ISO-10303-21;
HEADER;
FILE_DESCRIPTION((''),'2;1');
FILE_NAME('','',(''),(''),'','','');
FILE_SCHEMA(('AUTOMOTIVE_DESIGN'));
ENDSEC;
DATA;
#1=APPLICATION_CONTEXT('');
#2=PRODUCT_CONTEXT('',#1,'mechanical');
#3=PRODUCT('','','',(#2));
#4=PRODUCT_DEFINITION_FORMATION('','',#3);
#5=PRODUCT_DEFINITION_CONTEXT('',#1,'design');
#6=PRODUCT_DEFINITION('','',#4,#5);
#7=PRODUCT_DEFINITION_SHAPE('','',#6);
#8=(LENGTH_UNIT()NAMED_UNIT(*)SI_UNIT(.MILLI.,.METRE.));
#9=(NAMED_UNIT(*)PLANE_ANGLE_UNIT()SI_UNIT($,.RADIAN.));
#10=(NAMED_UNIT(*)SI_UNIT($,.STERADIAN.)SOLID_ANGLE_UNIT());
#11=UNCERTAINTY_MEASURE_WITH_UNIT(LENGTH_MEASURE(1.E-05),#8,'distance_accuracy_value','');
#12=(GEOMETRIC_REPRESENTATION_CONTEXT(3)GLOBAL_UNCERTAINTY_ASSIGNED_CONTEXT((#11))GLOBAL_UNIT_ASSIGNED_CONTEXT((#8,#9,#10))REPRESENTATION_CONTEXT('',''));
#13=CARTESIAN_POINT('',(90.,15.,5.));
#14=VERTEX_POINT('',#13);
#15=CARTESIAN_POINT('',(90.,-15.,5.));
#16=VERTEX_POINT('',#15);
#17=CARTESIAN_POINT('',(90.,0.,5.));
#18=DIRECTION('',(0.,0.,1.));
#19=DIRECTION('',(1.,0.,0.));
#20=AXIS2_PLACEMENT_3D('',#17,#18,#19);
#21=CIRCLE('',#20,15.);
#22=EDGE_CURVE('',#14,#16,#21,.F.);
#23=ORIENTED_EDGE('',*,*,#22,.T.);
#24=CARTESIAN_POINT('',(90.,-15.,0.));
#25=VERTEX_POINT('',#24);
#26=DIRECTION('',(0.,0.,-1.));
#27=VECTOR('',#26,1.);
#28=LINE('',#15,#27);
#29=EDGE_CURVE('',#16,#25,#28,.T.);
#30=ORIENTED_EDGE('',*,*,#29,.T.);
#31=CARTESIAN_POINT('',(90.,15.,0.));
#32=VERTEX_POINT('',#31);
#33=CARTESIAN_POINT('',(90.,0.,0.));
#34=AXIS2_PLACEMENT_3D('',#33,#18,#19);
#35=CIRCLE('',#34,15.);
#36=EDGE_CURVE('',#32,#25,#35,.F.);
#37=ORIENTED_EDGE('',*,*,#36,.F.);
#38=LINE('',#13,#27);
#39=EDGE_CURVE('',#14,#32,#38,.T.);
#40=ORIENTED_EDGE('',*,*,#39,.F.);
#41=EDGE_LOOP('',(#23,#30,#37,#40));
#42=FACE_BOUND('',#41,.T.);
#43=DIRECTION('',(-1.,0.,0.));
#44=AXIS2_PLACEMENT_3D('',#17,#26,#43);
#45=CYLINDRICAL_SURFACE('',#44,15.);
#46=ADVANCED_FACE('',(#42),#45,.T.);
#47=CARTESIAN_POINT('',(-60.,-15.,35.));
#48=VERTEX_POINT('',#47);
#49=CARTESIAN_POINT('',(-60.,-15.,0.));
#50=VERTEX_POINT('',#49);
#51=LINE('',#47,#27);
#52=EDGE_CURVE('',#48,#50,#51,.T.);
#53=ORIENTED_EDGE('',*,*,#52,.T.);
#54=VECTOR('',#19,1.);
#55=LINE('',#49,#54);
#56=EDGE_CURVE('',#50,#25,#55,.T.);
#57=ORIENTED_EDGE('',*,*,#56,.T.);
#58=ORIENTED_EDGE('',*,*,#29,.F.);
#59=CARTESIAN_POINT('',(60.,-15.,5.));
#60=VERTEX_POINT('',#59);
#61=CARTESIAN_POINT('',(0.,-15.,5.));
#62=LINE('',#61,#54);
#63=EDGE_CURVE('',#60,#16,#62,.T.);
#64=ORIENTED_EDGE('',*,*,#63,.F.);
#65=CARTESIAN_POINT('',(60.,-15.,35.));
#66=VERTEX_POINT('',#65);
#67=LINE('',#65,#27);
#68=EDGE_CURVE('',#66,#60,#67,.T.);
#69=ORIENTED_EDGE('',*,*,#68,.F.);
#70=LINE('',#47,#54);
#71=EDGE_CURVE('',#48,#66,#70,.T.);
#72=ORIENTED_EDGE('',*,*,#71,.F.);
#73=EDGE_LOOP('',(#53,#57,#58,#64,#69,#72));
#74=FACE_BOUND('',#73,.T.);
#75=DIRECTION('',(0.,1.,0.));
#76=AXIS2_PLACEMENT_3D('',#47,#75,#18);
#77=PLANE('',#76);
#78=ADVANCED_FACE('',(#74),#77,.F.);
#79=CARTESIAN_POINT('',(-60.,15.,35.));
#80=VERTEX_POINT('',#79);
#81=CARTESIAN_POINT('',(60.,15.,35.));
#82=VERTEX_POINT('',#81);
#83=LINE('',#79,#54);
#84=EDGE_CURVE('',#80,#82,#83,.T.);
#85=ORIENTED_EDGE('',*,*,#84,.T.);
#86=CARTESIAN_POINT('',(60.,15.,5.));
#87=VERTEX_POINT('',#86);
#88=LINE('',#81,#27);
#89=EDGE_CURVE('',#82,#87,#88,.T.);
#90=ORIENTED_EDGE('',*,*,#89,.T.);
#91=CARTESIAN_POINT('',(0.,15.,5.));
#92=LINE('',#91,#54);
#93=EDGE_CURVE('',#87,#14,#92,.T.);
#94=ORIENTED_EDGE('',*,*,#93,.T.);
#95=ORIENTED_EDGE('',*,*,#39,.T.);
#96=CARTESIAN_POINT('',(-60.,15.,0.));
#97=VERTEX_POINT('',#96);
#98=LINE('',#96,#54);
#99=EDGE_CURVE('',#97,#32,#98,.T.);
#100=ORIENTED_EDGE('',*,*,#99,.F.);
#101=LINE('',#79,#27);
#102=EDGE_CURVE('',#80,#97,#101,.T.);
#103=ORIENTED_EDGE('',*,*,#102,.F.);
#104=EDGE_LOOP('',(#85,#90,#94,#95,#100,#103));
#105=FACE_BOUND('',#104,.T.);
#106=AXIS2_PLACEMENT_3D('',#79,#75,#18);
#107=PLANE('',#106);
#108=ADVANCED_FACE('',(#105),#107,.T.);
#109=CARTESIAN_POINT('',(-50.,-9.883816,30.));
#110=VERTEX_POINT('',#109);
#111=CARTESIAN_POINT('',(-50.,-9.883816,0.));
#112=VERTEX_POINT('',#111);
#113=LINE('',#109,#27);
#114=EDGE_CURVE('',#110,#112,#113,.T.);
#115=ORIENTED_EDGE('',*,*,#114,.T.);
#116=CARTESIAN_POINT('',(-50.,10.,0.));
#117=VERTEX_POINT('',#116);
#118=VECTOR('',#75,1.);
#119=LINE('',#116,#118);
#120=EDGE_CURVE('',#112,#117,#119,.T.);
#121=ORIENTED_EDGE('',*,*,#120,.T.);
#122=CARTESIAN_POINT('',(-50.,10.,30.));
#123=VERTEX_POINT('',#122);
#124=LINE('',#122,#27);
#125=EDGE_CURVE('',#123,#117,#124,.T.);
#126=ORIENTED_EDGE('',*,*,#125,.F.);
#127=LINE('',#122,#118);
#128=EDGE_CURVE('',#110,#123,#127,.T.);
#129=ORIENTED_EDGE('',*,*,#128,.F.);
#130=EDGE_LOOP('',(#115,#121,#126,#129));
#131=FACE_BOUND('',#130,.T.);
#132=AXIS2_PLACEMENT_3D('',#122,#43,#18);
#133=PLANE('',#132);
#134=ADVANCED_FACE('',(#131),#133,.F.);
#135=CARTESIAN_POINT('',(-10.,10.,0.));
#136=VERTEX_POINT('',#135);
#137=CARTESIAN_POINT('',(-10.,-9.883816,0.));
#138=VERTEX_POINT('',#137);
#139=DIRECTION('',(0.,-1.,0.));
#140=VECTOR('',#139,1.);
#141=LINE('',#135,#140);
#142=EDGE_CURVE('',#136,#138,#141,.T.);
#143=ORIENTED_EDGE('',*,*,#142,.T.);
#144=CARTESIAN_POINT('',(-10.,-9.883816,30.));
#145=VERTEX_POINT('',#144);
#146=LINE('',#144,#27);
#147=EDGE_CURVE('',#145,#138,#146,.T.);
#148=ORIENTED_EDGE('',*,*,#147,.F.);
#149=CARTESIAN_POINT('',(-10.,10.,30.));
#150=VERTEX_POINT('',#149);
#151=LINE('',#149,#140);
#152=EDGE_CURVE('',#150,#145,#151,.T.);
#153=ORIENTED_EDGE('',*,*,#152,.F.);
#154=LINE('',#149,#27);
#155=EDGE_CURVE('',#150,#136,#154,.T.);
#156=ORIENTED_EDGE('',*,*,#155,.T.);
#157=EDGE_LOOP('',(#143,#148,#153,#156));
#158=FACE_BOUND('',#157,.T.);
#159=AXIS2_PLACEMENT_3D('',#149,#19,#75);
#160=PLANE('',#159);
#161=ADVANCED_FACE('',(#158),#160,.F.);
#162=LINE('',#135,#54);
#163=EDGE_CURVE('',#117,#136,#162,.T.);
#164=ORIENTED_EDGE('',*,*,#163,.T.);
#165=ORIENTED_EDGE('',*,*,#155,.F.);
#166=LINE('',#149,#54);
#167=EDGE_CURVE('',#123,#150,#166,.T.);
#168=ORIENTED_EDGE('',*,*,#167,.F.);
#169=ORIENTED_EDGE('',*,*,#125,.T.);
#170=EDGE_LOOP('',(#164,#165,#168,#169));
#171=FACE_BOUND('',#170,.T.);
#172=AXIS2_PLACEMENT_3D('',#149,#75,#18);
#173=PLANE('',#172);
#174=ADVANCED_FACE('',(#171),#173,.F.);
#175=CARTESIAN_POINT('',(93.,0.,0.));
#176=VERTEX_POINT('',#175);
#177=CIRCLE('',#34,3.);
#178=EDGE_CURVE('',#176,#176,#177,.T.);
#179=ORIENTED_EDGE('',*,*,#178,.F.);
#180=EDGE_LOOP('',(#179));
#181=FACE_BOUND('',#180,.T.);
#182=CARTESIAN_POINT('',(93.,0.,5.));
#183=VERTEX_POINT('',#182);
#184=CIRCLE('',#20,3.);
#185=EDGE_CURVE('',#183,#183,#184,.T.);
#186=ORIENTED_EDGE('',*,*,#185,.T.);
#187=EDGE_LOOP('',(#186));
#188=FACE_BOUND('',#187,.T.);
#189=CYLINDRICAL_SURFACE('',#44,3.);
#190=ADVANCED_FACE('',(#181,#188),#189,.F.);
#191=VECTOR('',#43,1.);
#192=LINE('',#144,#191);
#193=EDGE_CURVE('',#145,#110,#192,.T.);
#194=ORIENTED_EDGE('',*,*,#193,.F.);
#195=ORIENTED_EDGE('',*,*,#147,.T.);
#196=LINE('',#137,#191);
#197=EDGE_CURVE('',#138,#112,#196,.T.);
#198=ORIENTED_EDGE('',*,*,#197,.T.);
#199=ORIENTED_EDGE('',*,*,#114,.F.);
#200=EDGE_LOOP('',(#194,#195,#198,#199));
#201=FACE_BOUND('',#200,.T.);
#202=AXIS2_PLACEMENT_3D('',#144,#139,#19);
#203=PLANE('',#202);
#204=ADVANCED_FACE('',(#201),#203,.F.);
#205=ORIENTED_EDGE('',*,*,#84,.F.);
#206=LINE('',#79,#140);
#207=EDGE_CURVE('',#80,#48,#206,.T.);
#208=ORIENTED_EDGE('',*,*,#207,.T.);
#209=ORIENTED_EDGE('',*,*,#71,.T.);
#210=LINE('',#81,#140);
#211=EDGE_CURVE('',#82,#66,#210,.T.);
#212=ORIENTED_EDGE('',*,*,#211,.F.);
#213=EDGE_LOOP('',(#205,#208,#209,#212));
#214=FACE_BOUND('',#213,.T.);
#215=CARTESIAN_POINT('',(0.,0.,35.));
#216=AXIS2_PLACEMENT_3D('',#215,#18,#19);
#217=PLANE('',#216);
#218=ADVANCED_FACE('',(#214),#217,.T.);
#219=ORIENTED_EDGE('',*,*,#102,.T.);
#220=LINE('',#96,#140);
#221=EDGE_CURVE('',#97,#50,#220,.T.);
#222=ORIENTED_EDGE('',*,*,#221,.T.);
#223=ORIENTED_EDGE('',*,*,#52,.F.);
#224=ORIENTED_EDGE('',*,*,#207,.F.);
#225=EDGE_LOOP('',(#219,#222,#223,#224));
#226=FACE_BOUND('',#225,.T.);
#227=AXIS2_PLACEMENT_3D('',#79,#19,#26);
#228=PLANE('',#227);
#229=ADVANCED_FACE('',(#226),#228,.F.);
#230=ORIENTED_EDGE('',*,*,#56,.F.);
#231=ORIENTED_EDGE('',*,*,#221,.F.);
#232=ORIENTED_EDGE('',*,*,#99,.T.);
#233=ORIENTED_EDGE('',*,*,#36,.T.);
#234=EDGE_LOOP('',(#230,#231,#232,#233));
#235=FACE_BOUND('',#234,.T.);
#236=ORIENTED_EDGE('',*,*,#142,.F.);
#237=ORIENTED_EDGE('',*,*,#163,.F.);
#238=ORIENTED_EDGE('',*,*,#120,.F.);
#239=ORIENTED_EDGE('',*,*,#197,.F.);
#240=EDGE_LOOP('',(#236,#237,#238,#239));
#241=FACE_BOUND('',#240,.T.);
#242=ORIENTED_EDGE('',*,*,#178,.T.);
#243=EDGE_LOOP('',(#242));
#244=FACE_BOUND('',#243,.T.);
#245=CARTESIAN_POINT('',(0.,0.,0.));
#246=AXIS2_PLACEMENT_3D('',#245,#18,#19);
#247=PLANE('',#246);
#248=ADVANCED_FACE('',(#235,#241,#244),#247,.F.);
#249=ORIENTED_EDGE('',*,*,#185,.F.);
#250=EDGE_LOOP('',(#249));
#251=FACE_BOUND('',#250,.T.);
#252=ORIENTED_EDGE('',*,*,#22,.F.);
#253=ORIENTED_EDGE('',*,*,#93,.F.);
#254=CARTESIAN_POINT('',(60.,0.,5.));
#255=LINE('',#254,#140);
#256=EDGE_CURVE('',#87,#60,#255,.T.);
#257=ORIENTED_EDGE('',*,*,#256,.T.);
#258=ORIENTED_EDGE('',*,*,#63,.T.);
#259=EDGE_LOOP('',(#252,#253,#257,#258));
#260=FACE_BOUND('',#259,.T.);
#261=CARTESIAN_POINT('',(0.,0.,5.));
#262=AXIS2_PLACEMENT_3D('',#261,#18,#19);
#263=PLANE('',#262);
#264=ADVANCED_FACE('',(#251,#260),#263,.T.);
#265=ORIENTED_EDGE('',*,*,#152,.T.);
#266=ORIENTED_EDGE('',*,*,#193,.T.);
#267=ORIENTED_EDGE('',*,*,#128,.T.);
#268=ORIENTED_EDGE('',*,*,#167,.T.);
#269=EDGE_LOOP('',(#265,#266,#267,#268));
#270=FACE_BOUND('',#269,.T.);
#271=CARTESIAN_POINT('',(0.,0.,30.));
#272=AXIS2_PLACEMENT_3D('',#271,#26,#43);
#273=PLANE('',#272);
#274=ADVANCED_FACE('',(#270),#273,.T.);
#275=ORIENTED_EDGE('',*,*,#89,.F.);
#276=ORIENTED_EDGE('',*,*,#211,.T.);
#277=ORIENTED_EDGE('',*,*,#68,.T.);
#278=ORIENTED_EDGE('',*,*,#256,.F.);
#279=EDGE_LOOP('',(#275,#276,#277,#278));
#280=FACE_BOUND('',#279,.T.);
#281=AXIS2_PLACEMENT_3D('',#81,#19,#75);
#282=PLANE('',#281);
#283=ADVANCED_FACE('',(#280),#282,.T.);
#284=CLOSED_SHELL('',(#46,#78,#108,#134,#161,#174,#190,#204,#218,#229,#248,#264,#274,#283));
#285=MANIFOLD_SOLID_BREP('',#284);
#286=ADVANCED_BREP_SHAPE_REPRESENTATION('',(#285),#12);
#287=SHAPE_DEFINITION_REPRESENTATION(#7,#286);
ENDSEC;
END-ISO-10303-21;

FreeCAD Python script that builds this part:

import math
import FreeCAD as App
import Part
import Sketcher
from FreeCAD import Vector


def add_polygon(sketch, points):
    """Adds a closed chain of lines whose ends are joined by coincident constraints."""
    first, n = sketch.GeometryCount, len(points)
    for a, b in zip(points, points[1:] + points[:1]):
        sketch.addGeometry(Part.LineSegment(App.Vector(*a, 0), App.Vector(*b, 0)), False)
    for i in range(n):
        sketch.addConstraint(Sketcher.Constraint("Coincident", first + i, 2, first + (i + 1) % n, 1))

doc = App.newDocument("Part")
body = doc.addObject("PartDesign::Body", "Body")

# Sketch on XY plane
sketch1 = body.newObject("Sketcher::SketchObject", "Sketch")
sketch1.AttachmentSupport = (doc.getObject("XY_Plane"), [""])
sketch1.MapMode = "FlatFace"
add_polygon(sketch1, [(-60, 15), (-60, -15), (60, -15), (60, 15)])  # lines 0-3
sketch1.addConstraint(Sketcher.Constraint("Vertical", 0))
sketch1.addConstraint(Sketcher.Constraint("Horizontal", 1))
sketch1.addConstraint(Sketcher.Constraint("Vertical", 2))
sketch1.addConstraint(Sketcher.Constraint("Horizontal", 3))
sketch1.addConstraint(Sketcher.Constraint("Symmetric", 0, 2, 2, 2, -1, 1))
sketch1.addConstraint(Sketcher.Constraint("DistanceX", 1, 1, 1, 2, 120.0))
sketch1.addConstraint(Sketcher.Constraint("DistanceY", 0, 2, 0, 1, 30.0))
pad1 = body.newObject("PartDesign::Pad", "Pad")
pad1.Profile = sketch1
pad1.Length = 35

# Sketch on XY plane
sketch2 = body.newObject("Sketcher::SketchObject", "Sketch001")
sketch2.AttachmentSupport = (doc.getObject("XY_Plane"), [""])
sketch2.MapMode = "FlatFace"
sketch2.addGeometry(Part.ArcOfCircle(Part.Circle(Vector(90, 0, 0), Vector(0, 0, 1), 15), math.radians(-90), math.radians(90)), False)
sketch2.addGeometry(Part.LineSegment(Vector(90, 15, 0), Vector(60, 15, 0)), False)
sketch2.addGeometry(Part.LineSegment(Vector(60, 15, 0), Vector(60, -15, 0)), False)
sketch2.addGeometry(Part.LineSegment(Vector(60, -15, 0), Vector(90, -15, 0)), False)
sketch2.addGeometry(Part.Circle(Vector(90, 0, 0), Vector(0, 0, 1), 3), False)
sketch2.addConstraint(Sketcher.Constraint("Tangent", 0, 2, 1, 1))
sketch2.addConstraint(Sketcher.Constraint("Coincident", 1, 2, 2, 1))
sketch2.addConstraint(Sketcher.Constraint("Coincident", 2, 2, 3, 1))
sketch2.addConstraint(Sketcher.Constraint("Tangent", 3, 2, 0, 1))
sketch2.addConstraint(Sketcher.Constraint("Horizontal", 1))
sketch2.addConstraint(Sketcher.Constraint("Vertical", 2))
sketch2.addConstraint(Sketcher.Constraint("Horizontal", 3))
sketch2.addConstraint(Sketcher.Constraint("Coincident", 4, 3, 0, 3))
sketch2.addConstraint(Sketcher.Constraint("PointOnObject", 0, 3, -1))
sketch2.addConstraint(Sketcher.Constraint("Equal", 3, 2))
sketch2.addConstraint(Sketcher.Constraint("Diameter", 4, 6.0))
sketch2.addConstraint(Sketcher.Constraint("Radius", 0, 15.0))
sketch2.addConstraint(Sketcher.Constraint("DistanceX", -1, 1, 0, 3, 90.0))
pad2 = body.newObject("PartDesign::Pad", "Pad001")
pad2.Profile = sketch2
pad2.Length = 5

# Sketch on XY plane
sketch3 = body.newObject("Sketcher::SketchObject", "Sketch002")
sketch3.AttachmentSupport = (doc.getObject("XY_Plane"), [""])
sketch3.MapMode = "FlatFace"
add_polygon(sketch3, [(-10, 10), (-10, -10), (-50, -10), (-50, 10)])  # lines 0-3
sketch3.addConstraint(Sketcher.Constraint("Vertical", 0))
sketch3.addConstraint(Sketcher.Constraint("Horizontal", 1))
sketch3.addConstraint(Sketcher.Constraint("Vertical", 2))
sketch3.addConstraint(Sketcher.Constraint("Horizontal", 3))
sketch3.addConstraint(Sketcher.Constraint("DistanceX", 1, 2, 1, 1, 40.0))
sketch3.addConstraint(Sketcher.Constraint("DistanceX", 0, 2, -1, 1, 10.0))
sketch3.addConstraint(Sketcher.Constraint("DistanceY", -1, 1, 2, 2, 10.0))
sketch3.addConstraint(Sketcher.Constraint("DistanceY", 0, 2, 0, 1, 19.883816))
pocket1 = body.newObject("PartDesign::Pocket", "Pocket")
pocket1.Profile = sketch3
pocket1.Length = 30
pocket1.Reversed = True

doc.recompute()
